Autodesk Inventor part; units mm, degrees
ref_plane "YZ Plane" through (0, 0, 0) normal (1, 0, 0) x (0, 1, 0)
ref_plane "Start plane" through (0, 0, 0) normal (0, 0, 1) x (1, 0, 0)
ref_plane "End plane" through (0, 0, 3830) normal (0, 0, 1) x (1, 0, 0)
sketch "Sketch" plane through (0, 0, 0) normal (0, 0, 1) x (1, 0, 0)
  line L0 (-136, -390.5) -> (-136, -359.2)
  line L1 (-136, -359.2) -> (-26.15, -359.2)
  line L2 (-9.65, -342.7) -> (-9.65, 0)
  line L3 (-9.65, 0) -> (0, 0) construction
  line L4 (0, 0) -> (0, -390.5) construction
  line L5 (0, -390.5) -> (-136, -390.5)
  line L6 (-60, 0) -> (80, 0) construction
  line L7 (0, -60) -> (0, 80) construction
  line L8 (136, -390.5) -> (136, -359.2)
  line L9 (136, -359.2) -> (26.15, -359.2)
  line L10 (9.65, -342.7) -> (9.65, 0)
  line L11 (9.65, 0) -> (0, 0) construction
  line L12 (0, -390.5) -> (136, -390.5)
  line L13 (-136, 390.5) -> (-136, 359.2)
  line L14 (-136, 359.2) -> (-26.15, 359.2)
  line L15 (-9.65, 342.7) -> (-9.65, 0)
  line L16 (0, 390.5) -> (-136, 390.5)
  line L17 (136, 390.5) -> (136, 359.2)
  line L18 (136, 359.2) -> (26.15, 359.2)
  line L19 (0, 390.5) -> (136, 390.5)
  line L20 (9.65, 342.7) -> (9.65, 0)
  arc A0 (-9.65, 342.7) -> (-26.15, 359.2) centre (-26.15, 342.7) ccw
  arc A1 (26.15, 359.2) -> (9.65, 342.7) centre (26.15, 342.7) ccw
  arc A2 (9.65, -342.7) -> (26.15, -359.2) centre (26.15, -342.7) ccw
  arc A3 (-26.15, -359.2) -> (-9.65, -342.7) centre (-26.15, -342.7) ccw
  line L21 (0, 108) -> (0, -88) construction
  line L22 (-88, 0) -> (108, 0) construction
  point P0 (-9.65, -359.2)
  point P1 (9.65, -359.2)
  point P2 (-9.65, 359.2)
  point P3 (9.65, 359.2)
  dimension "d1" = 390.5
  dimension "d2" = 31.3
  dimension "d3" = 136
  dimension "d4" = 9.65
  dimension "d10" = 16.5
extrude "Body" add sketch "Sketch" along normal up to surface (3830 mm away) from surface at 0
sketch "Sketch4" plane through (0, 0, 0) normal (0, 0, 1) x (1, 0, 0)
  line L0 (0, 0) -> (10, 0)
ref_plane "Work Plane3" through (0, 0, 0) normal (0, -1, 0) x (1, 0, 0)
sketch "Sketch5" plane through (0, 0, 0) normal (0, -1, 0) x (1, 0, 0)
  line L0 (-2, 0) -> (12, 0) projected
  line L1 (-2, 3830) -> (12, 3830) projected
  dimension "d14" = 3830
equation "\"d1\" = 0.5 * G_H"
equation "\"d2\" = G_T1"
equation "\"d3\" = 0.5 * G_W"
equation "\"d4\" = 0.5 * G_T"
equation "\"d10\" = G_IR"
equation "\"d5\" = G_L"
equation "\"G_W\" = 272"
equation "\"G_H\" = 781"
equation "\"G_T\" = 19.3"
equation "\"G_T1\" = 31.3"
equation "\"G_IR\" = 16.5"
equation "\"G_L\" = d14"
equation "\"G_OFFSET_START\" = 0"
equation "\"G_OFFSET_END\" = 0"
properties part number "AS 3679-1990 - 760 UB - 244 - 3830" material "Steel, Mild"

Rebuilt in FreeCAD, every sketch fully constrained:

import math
import FreeCAD as App
import Part
import Sketcher
Q = App.Units.Quantity

doc = App.newDocument("Part")
body = doc.addObject("PartDesign::Body", "Body")

# Sketch on XY plane
sketch1 = body.newObject("Sketcher::SketchObject", "Sketch")
sketch1.AttachmentSupport = (doc.getObject("XY_Plane"), [""])
sketch1.MapMode = "FlatFace"
sketch1.addGeometry(Part.LineSegment(App.Vector(-136, -359, 0), App.Vector(-136, -390, 0)), False)
sketch1.addGeometry(Part.LineSegment(App.Vector(-136, -390, 0), App.Vector(136, -390, 0)), False)
sketch1.addGeometry(Part.LineSegment(App.Vector(136, -390, 0), App.Vector(136, -359, 0)), False)
sketch1.addGeometry(Part.LineSegment(App.Vector(136, -359, 0), App.Vector(26, -359, 0)), False)
sketch1.addGeometry(Part.ArcOfCircle(Part.Circle(App.Vector(26, -343, 0), App.Vector(0, 0, 1), 16), math.radians(180), math.radians(270)), False)
sketch1.addGeometry(Part.LineSegment(App.Vector(10, -343, 0), App.Vector(10, 343, 0)), False)
sketch1.addGeometry(Part.ArcOfCircle(Part.Circle(App.Vector(26, 343, 0), App.Vector(0, 0, 1), 16), math.radians(90), math.radians(180)), False)
sketch1.addGeometry(Part.LineSegment(App.Vector(26, 359, 0), App.Vector(136, 359, 0)), False)
sketch1.addGeometry(Part.LineSegment(App.Vector(136, 359, 0), App.Vector(136, 390, 0)), False)
sketch1.addGeometry(Part.LineSegment(App.Vector(136, 390, 0), App.Vector(-136, 390, 0)), False)
sketch1.addGeometry(Part.LineSegment(App.Vector(-136, 390, 0), App.Vector(-136, 359, 0)), False)
sketch1.addGeometry(Part.LineSegment(App.Vector(-136, 359, 0), App.Vector(-26, 359, 0)), False)
sketch1.addGeometry(Part.ArcOfCircle(Part.Circle(App.Vector(-26, 343, 0), App.Vector(0, 0, 1), 16), math.radians(0), math.radians(90)), False)
sketch1.addGeometry(Part.LineSegment(App.Vector(-10, 343, 0), App.Vector(-10, -343, 0)), False)
sketch1.addGeometry(Part.ArcOfCircle(Part.Circle(App.Vector(-26, -343, 0), App.Vector(0, 0, 1), 16), math.radians(-90), math.radians(0)), False)
sketch1.addGeometry(Part.LineSegment(App.Vector(-26, -359, 0), App.Vector(-136, -359, 0)), False)
sketch1.addConstraint(Sketcher.Constraint("Coincident", 0, 2, 1, 1))
sketch1.addConstraint(Sketcher.Constraint("Coincident", 1, 2, 2, 1))
sketch1.addConstraint(Sketcher.Constraint("Coincident", 2, 2, 3, 1))
sketch1.addConstraint(Sketcher.Constraint("Tangent", 3, 2, 4, 2))
sketch1.addConstraint(Sketcher.Constraint("Tangent", 4, 1, 5, 1))
sketch1.addConstraint(Sketcher.Constraint("Tangent", 5, 2, 6, 2))
sketch1.addConstraint(Sketcher.Constraint("Tangent", 6, 1, 7, 1))
sketch1.addConstraint(Sketcher.Constraint("Coincident", 7, 2, 8, 1))
sketch1.addConstraint(Sketcher.Constraint("Coincident", 8, 2, 9, 1))
sketch1.addConstraint(Sketcher.Constraint("Coincident", 9, 2, 10, 1))
sketch1.addConstraint(Sketcher.Constraint("Coincident", 10, 2, 11, 1))
sketch1.addConstraint(Sketcher.Constraint("Tangent", 11, 2, 12, 2))
sketch1.addConstraint(Sketcher.Constraint("Tangent", 12, 1, 13, 1))
sketch1.addConstraint(Sketcher.Constraint("Tangent", 13, 2, 14, 2))
sketch1.addConstraint(Sketcher.Constraint("Tangent", 14, 1, 15, 1))
sketch1.addConstraint(Sketcher.Constraint("Coincident", 15, 2, 0, 1))
sketch1.addConstraint(Sketcher.Constraint("Vertical", 0))
sketch1.addConstraint(Sketcher.Constraint("Horizontal", 1))
sketch1.addConstraint(Sketcher.Constraint("Vertical", 2))
sketch1.addConstraint(Sketcher.Constraint("Horizontal", 3))
sketch1.addConstraint(Sketcher.Constraint("Vertical", 5))
sketch1.addConstraint(Sketcher.Constraint("Horizontal", 7))
sketch1.addConstraint(Sketcher.Constraint("Vertical", 8))
sketch1.addConstraint(Sketcher.Constraint("Horizontal", 9))
sketch1.addConstraint(Sketcher.Constraint("Vertical", 10))
sketch1.addConstraint(Sketcher.Constraint("Horizontal", 11))
sketch1.addConstraint(Sketcher.Constraint("Vertical", 13))
sketch1.addConstraint(Sketcher.Constraint("Horizontal", 15))
sketch1.addConstraint(Sketcher.Constraint("Equal", 4, 6))
sketch1.addConstraint(Sketcher.Constraint("Equal", 6, 12))
sketch1.addConstraint(Sketcher.Constraint("Equal", 12, 14))
sketch1.addConstraint(Sketcher.Constraint("Symmetric", 4, 3, 12, 3, -1, 1))
sketch1.addConstraint(Sketcher.Constraint("Symmetric", 0, 2, 8, 2, -1, 1))
sketch1.addConstraint(Sketcher.Constraint("Symmetric", 7, 2, 10, 2, -2))
sketch1.addConstraint(Sketcher.Constraint("Symmetric", 2, 2, 15, 2, -2))
sketch1.addConstraint(Sketcher.Constraint("Radius", 4, Q("16.5 mm")))
sketch1.addConstraint(Sketcher.Constraint("DistanceY", 0, 2, 0, 1, Q("31.3 mm")))
sketch1.addConstraint(Sketcher.Constraint("DistanceX", 0, 2, -1, 1, Q("136 mm")))
sketch1.addConstraint(Sketcher.Constraint("DistanceY", 0, 2, -1, 1, Q("390.5 mm")))
sketch1.addConstraint(Sketcher.Constraint("DistanceX", -1, 1, 4, 1, Q("9.65 mm")))
pad1 = body.newObject("PartDesign::Pad", "Pad")
pad1.Profile = sketch1
pad1.Length = 3830

doc.recompute()
